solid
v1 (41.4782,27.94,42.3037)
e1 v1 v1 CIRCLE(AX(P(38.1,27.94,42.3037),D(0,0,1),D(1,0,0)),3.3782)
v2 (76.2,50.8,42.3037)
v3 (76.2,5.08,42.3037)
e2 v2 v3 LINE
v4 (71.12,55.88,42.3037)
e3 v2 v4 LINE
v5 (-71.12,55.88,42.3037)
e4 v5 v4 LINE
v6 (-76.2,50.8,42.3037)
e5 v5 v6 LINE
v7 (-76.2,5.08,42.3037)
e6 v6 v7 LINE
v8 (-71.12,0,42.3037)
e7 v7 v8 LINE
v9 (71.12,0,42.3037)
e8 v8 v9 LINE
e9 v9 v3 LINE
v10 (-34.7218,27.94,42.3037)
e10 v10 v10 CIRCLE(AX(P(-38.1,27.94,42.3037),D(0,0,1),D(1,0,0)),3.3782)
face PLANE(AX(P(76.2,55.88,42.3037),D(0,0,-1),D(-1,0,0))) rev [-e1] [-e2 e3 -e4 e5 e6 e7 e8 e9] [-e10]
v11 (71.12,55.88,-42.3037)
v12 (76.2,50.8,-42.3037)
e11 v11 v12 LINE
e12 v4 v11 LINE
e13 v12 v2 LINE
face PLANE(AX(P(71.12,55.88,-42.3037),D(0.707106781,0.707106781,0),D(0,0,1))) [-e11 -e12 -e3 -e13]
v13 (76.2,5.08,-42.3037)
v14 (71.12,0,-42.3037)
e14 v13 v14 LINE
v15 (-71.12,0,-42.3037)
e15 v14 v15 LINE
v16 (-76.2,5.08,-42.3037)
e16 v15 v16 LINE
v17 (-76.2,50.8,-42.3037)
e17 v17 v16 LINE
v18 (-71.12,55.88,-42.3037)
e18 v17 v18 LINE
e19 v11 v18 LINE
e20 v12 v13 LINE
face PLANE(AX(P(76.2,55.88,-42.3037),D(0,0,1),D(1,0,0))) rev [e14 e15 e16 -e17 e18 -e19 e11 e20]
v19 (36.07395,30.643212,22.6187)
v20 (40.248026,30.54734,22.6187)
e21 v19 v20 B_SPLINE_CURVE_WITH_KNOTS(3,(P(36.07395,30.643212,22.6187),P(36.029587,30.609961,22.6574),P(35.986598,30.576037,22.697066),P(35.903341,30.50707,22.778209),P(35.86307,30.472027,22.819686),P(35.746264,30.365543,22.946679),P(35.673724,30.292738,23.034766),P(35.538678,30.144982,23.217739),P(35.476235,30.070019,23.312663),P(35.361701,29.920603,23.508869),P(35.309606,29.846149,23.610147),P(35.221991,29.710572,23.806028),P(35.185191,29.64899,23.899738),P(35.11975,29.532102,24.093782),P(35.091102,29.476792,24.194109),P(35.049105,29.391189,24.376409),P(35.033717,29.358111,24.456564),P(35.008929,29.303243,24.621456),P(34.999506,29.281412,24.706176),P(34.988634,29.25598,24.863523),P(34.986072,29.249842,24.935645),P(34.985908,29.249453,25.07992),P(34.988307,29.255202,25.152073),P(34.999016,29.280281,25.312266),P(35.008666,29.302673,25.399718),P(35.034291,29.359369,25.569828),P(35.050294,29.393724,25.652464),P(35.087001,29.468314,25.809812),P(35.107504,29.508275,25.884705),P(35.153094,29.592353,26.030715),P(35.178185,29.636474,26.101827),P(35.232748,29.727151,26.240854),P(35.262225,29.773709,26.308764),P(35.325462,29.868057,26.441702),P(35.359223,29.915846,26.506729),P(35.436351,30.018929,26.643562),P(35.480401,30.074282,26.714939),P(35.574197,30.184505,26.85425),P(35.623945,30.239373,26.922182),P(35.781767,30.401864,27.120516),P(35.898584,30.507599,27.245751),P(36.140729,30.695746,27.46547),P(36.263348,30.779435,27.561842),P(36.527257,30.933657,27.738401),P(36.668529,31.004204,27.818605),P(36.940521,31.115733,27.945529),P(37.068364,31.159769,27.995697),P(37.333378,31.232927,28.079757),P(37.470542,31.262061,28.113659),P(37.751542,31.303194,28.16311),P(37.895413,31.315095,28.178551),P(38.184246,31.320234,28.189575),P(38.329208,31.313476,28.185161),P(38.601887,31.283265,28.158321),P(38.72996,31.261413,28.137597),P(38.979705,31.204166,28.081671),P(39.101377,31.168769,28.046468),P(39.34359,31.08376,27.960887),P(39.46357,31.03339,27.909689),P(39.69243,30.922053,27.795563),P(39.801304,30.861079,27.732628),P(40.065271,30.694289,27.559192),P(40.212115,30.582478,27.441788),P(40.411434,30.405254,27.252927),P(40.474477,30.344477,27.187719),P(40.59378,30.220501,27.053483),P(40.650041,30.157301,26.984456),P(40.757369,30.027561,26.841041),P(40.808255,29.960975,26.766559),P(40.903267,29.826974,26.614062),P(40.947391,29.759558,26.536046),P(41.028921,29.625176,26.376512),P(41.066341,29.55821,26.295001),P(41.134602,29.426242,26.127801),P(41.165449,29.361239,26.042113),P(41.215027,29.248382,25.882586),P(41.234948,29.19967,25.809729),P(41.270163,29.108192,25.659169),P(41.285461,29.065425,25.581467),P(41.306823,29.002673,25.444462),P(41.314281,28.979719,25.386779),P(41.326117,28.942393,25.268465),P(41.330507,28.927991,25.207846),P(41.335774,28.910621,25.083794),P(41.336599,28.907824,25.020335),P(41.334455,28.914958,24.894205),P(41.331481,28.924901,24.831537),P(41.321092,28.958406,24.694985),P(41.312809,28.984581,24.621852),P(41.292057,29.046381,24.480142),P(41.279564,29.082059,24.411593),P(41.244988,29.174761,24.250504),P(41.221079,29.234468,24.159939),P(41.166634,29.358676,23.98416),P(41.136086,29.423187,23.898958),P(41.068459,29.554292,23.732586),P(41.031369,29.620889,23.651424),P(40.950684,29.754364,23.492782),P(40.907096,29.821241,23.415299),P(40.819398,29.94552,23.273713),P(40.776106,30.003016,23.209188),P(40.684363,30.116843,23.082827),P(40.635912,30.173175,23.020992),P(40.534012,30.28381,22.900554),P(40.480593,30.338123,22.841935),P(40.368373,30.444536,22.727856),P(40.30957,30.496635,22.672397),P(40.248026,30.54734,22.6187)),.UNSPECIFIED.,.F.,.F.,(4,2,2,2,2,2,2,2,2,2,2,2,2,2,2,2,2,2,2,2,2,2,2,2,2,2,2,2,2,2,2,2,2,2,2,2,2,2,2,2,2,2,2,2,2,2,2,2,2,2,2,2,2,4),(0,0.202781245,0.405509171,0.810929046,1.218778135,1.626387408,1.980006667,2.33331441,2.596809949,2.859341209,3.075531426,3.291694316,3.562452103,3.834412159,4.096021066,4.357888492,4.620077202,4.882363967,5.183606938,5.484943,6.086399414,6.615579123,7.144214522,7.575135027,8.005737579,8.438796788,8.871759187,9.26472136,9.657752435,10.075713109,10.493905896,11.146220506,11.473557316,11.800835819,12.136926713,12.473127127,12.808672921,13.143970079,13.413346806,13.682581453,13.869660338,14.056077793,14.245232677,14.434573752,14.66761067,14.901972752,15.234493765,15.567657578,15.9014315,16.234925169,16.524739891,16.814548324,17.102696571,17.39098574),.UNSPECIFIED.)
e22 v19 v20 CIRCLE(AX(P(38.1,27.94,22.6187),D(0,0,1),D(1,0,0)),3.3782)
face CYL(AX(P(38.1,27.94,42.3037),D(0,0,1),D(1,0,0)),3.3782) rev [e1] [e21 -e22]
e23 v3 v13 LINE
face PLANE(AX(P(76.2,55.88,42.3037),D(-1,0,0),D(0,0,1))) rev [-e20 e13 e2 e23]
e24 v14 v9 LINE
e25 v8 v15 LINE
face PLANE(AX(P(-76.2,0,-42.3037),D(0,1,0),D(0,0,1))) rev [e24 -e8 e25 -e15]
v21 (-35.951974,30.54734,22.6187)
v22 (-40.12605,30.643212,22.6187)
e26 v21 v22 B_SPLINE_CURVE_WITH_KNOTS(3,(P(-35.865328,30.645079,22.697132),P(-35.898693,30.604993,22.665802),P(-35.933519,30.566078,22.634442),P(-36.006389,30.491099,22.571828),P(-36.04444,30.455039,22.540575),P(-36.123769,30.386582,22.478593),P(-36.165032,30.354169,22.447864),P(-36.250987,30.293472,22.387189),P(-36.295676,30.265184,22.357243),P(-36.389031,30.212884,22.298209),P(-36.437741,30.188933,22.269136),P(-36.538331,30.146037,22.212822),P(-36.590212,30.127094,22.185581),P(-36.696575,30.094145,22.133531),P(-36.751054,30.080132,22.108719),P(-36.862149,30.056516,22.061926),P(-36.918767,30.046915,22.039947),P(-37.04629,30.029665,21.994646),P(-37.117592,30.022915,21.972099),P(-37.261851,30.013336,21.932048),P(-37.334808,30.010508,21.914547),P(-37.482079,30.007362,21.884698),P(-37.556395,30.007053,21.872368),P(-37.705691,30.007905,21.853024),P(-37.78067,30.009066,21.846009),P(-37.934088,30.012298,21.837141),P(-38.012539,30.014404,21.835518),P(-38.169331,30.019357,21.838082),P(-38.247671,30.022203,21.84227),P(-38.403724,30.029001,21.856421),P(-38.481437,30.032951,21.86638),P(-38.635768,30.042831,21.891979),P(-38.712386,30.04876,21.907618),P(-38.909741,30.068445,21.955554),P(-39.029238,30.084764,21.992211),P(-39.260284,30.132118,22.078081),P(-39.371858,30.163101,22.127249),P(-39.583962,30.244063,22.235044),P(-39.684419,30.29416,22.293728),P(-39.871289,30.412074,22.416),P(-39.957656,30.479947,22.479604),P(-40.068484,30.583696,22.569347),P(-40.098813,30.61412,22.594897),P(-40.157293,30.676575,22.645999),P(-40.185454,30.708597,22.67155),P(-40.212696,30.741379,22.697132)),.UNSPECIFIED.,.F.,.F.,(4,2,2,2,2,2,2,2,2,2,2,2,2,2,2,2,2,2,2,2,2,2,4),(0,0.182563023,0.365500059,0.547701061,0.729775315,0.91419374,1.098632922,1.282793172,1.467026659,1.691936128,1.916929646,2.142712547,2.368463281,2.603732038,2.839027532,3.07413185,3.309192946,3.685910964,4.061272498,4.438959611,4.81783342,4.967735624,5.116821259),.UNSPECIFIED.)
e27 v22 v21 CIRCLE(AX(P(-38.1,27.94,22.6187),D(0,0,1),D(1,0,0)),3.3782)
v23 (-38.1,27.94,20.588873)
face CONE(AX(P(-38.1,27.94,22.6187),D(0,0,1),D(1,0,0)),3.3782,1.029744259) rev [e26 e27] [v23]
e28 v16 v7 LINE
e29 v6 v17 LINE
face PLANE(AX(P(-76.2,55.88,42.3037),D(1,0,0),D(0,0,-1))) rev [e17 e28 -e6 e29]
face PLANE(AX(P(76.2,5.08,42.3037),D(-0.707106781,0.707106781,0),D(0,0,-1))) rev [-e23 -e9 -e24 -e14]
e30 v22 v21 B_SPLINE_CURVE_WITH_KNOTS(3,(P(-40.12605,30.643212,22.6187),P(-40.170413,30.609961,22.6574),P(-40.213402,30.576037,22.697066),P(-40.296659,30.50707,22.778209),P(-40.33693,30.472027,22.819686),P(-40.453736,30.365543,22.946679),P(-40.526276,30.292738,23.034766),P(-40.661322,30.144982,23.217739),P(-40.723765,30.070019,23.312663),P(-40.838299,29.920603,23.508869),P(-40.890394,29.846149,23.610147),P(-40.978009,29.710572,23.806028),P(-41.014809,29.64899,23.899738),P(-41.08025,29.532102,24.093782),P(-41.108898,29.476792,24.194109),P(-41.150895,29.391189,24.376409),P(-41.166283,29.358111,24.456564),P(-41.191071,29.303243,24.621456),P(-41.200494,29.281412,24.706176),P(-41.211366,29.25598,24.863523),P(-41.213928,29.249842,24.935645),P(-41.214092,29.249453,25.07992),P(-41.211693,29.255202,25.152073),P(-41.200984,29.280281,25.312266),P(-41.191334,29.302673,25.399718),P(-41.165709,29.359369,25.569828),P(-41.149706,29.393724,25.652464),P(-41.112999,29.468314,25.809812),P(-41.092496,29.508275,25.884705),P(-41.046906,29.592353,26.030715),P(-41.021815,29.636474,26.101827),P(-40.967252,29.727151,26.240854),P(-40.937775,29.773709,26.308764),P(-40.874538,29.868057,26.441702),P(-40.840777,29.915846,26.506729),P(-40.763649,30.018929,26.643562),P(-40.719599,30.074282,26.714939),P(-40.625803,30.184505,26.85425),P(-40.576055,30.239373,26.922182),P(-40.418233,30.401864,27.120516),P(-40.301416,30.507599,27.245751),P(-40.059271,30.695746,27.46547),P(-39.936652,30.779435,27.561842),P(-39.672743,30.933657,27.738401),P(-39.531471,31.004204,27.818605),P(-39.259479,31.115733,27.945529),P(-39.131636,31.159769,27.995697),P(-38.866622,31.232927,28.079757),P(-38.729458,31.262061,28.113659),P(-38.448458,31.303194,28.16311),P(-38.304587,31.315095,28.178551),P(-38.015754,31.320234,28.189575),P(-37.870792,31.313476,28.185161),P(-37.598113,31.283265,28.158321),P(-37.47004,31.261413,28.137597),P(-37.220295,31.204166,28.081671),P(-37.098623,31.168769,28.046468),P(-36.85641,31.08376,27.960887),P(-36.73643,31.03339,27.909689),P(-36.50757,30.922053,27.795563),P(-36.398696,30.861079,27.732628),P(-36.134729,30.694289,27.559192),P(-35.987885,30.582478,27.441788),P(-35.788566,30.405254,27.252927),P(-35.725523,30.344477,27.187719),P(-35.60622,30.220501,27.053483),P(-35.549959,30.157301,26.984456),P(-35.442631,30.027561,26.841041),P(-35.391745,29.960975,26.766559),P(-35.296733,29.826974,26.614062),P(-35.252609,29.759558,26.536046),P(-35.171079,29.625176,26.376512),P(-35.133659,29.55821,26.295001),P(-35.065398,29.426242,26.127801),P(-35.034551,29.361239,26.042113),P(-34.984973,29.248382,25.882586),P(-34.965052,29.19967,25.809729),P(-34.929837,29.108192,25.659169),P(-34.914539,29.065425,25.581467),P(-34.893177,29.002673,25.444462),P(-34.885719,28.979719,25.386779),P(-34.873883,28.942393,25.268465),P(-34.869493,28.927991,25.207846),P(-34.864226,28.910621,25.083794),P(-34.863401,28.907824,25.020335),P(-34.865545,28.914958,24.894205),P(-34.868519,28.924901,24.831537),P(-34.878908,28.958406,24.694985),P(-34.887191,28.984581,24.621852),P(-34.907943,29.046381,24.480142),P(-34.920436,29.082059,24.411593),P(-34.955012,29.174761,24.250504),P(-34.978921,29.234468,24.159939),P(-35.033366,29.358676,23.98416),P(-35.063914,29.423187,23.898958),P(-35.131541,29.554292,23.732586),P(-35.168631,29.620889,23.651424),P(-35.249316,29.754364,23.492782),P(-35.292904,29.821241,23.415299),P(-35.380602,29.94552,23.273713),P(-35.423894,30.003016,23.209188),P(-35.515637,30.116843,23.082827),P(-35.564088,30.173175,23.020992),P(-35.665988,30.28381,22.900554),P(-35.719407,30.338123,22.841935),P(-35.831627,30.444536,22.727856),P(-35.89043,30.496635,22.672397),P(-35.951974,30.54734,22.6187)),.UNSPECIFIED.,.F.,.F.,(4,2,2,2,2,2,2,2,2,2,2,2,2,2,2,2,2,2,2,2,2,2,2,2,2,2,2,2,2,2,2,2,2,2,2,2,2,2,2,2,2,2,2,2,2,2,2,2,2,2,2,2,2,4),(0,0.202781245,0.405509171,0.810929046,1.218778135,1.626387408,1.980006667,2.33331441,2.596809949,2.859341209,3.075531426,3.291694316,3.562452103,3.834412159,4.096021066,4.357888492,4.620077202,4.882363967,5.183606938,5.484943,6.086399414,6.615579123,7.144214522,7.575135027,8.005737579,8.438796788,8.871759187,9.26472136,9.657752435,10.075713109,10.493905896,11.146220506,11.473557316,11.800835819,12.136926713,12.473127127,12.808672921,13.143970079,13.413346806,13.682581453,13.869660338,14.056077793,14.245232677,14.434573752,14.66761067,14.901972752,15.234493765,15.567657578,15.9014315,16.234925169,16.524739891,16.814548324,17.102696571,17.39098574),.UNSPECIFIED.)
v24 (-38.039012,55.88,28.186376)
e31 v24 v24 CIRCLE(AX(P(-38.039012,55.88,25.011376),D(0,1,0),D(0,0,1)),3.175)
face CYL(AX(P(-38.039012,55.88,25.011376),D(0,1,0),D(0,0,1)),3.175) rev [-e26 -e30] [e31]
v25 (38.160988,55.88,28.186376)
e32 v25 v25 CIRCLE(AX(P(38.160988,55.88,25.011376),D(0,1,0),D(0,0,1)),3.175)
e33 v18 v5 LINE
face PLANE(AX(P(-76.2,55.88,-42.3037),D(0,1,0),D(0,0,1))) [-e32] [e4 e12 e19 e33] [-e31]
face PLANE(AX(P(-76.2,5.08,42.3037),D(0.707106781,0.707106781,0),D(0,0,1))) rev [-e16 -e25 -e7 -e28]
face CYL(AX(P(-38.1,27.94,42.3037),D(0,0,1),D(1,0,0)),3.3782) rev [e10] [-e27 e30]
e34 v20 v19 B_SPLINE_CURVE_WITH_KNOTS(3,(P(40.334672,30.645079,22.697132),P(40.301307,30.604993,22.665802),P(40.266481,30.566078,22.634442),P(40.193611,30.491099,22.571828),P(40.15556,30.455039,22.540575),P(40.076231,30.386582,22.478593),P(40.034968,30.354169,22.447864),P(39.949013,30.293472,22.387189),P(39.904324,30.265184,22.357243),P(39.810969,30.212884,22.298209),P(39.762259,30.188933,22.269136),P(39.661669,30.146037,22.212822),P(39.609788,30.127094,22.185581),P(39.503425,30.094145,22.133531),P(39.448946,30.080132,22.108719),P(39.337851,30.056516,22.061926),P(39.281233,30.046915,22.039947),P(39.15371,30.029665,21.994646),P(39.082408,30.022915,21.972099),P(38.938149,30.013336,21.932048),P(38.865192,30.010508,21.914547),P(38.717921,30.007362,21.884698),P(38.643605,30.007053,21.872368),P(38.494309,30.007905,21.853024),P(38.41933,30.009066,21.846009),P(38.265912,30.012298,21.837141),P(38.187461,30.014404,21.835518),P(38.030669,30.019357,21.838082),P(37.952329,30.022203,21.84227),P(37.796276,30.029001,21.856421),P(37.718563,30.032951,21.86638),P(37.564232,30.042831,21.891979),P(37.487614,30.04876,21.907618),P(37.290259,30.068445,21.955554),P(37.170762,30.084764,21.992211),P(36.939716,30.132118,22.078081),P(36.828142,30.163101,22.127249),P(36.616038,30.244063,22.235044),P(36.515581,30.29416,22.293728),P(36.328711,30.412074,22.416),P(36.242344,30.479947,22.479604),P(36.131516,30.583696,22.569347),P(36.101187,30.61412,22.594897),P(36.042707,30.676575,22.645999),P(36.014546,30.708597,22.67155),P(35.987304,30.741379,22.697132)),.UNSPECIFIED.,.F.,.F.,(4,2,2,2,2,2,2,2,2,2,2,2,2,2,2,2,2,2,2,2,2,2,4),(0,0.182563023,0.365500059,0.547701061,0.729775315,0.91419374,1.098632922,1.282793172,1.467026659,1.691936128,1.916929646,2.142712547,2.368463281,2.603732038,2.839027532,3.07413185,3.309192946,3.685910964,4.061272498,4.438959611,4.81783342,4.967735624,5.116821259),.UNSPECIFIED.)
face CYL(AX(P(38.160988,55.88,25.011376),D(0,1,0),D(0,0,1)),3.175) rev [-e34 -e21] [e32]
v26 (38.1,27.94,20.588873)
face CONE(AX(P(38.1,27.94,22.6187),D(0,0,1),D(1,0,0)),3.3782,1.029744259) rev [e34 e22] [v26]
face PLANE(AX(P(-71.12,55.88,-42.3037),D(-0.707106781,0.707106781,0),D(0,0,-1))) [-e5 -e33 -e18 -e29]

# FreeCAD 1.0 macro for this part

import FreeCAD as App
import Part
import Sketcher
Q = App.Units.Quantity


def edges_at(feature, points):
    """Names of the edges that pass closest to the given points."""
    edges = feature.Shape.Edges
    near = lambda p: min(range(len(edges)), key=lambda i: edges[i].distToShape(Part.Vertex(*p))[0])
    return sorted({f"Edge{near(p) + 1}" for p in points})

doc = App.newDocument("Part")
params = doc.addObject("Spreadsheet::Sheet", "Params")
for row, (alias, value) in enumerate([
    ("sketch1_width", "6 in"),
    ("sketch1_height", "3.331 in"),
    ("pad1_length", "2.2 in"),
    ("sketch2_diameter", "0.266 in"),
    ("hole_diameter", "0.266 in"),
    ("hole_depth", "0.775 in"),
    ("sketch3_diameter", "0.25 in"),
    ("hole2_diameter", "0.25 in"),
    ("hole2_depth", "1.1 in"),
    ("chamfer_size", "0.2 in"),
], start=1):
    params.set(f"A{row}", alias)
    params.set(f"B{row}", "=" + value)
    params.setAlias(f"B{row}", alias)

body = doc.addObject("PartDesign::Body", "Body")

# Sketch on XZ plane
sketch1 = body.newObject("Sketcher::SketchObject", "Sketch")
sketch1.AttachmentSupport = (doc.getObject("XZ_Plane"), [""])
sketch1.MapMode = "FlatFace"
sketch1.addGeometry([
    Part.LineSegment(App.Vector(-76, -42, 0), App.Vector(-76, 42, 0)),
    Part.LineSegment(App.Vector(-76, 42, 0), App.Vector(76, 42, 0)),
    Part.LineSegment(App.Vector(76, 42, 0), App.Vector(76, -42, 0)),
    Part.LineSegment(App.Vector(76, -42, 0), App.Vector(-76, -42, 0)),
], False)
sketch1.addConstraint([
    Sketcher.Constraint("Coincident", 0, 2, 1, 1),
    Sketcher.Constraint("Coincident", 1, 2, 2, 1),
    Sketcher.Constraint("Coincident", 2, 2, 3, 1),
    Sketcher.Constraint("Coincident", 3, 2, 0, 1),
    Sketcher.Constraint("Vertical", 0),
    Sketcher.Constraint("Horizontal", 1),
    Sketcher.Constraint("Vertical", 2),
    Sketcher.Constraint("Horizontal", 3),
    Sketcher.Constraint("Symmetric", 0, 2, 2, 2, -1, 1),
    Sketcher.Constraint("DistanceX", 1, 1, 1, 2, Q("6 in")),
    Sketcher.Constraint("DistanceY", 0, 1, 0, 2, Q("3.331 in")),
])
sketch1.setExpression("Constraints[9]", "Params.sketch1_width")
sketch1.setExpression("Constraints[10]", "Params.sketch1_height")
pad1 = body.newObject("PartDesign::Pad", "Pad")
pad1.Profile = sketch1
pad1.setExpression("Length", "Params.pad1_length")
pad1.Reversed = True

# Sketch on XY plane
sketch2 = body.newObject("Sketcher::SketchObject", "Sketch001")
sketch2.AttachmentSupport = (doc.getObject("XY_Plane"), [""])
sketch2.MapMode = "FlatFace"
sketch2.AttachmentOffset = App.Placement(App.Vector(0, 0, 1.6655 * 25.4), App.Rotation())
sketch2.addGeometry([
    Part.Circle(App.Vector(-38.1, 27.9, 0), App.Vector(0, 0, 1), 3.4),
    Part.Circle(App.Vector(38.1, 27.9, 0), App.Vector(0, 0, 1), 3.4),
], False)
sketch2.addConstraint([
    Sketcher.Constraint("Equal", 0, 1),
    Sketcher.Constraint("Symmetric", 0, 3, 1, 3, -2),
    Sketcher.Constraint("Diameter", 0, Q("0.266 in")),
    Sketcher.Constraint("DistanceX", 0, 3, 1, 3, Q("3 in")),
    Sketcher.Constraint("DistanceY", -1, 1, 0, 3, Q("1.1 in")),
])
sketch2.setExpression("Constraints[2]", "Params.sketch2_diameter")
doc.recompute()
hole = body.newObject("PartDesign::Hole", "Hole")
hole.Profile = sketch2
hole.ThreadType = "None"
hole.setExpression("Diameter", "Params.hole_diameter")
hole.DepthType = "Dimension"
hole.setExpression("Depth", "Params.hole_depth")
hole.DrillPoint = "Angled"
hole.DrillPointAngle = 118

# Sketch on XZ plane
sketch3 = body.newObject("Sketcher::SketchObject", "Sketch002")
sketch3.AttachmentSupport = (doc.getObject("XZ_Plane"), [""])
sketch3.MapMode = "FlatFace"
sketch3.AttachmentOffset = App.Placement(App.Vector(0, 0, -2.2 * 25.4), App.Rotation())
sketch3.addGeometry([
    Part.Circle(App.Vector(38.2, 25, 0), App.Vector(0, 0, 1), 3.2),
    Part.Circle(App.Vector(-38, 25, 0), App.Vector(0, 0, 1), 3.2),
], False)
sketch3.addConstraint([
    Sketcher.Constraint("Equal", 0, 1),
    Sketcher.Constraint("Horizontal", 0, 3, 1, 3),
    Sketcher.Constraint("Diameter", 0, Q("0.25 in")),
    Sketcher.Constraint("DistanceX", 1, 3, 0, 3, Q("3 in")),
    Sketcher.Constraint("DistanceY", -1, 1, 0, 3, Q("0.9846998 in")),
    Sketcher.Constraint("DistanceX", -1, 1, 0, 3, Q("38.160988 mm")),
])
sketch3.setExpression("Constraints[2]", "Params.sketch3_diameter")
doc.recompute()
hole2 = body.newObject("PartDesign::Hole", "Hole001")
hole2.Profile = sketch3
hole2.ThreadType = "None"
hole2.setExpression("Diameter", "Params.hole2_diameter")
hole2.DepthType = "Dimension"
hole2.setExpression("Depth", "Params.hole2_depth")
hole2.DrillPoint = "Angled"
hole2.DrillPointAngle = 118
hole2.Reversed = True
doc.recompute()

chamfer = body.newObject("PartDesign::Chamfer", "Chamfer")
chamfer.Base = (hole2, edges_at(hole2, [
    (76.2, 55.88, 0),
    (-76.2, 55.88, 0),
    (76.2, 0, 0),
    (-76.2, 0, 0),
]))
chamfer.setExpression("Size", "Params.chamfer_size")

doc.recompute()
